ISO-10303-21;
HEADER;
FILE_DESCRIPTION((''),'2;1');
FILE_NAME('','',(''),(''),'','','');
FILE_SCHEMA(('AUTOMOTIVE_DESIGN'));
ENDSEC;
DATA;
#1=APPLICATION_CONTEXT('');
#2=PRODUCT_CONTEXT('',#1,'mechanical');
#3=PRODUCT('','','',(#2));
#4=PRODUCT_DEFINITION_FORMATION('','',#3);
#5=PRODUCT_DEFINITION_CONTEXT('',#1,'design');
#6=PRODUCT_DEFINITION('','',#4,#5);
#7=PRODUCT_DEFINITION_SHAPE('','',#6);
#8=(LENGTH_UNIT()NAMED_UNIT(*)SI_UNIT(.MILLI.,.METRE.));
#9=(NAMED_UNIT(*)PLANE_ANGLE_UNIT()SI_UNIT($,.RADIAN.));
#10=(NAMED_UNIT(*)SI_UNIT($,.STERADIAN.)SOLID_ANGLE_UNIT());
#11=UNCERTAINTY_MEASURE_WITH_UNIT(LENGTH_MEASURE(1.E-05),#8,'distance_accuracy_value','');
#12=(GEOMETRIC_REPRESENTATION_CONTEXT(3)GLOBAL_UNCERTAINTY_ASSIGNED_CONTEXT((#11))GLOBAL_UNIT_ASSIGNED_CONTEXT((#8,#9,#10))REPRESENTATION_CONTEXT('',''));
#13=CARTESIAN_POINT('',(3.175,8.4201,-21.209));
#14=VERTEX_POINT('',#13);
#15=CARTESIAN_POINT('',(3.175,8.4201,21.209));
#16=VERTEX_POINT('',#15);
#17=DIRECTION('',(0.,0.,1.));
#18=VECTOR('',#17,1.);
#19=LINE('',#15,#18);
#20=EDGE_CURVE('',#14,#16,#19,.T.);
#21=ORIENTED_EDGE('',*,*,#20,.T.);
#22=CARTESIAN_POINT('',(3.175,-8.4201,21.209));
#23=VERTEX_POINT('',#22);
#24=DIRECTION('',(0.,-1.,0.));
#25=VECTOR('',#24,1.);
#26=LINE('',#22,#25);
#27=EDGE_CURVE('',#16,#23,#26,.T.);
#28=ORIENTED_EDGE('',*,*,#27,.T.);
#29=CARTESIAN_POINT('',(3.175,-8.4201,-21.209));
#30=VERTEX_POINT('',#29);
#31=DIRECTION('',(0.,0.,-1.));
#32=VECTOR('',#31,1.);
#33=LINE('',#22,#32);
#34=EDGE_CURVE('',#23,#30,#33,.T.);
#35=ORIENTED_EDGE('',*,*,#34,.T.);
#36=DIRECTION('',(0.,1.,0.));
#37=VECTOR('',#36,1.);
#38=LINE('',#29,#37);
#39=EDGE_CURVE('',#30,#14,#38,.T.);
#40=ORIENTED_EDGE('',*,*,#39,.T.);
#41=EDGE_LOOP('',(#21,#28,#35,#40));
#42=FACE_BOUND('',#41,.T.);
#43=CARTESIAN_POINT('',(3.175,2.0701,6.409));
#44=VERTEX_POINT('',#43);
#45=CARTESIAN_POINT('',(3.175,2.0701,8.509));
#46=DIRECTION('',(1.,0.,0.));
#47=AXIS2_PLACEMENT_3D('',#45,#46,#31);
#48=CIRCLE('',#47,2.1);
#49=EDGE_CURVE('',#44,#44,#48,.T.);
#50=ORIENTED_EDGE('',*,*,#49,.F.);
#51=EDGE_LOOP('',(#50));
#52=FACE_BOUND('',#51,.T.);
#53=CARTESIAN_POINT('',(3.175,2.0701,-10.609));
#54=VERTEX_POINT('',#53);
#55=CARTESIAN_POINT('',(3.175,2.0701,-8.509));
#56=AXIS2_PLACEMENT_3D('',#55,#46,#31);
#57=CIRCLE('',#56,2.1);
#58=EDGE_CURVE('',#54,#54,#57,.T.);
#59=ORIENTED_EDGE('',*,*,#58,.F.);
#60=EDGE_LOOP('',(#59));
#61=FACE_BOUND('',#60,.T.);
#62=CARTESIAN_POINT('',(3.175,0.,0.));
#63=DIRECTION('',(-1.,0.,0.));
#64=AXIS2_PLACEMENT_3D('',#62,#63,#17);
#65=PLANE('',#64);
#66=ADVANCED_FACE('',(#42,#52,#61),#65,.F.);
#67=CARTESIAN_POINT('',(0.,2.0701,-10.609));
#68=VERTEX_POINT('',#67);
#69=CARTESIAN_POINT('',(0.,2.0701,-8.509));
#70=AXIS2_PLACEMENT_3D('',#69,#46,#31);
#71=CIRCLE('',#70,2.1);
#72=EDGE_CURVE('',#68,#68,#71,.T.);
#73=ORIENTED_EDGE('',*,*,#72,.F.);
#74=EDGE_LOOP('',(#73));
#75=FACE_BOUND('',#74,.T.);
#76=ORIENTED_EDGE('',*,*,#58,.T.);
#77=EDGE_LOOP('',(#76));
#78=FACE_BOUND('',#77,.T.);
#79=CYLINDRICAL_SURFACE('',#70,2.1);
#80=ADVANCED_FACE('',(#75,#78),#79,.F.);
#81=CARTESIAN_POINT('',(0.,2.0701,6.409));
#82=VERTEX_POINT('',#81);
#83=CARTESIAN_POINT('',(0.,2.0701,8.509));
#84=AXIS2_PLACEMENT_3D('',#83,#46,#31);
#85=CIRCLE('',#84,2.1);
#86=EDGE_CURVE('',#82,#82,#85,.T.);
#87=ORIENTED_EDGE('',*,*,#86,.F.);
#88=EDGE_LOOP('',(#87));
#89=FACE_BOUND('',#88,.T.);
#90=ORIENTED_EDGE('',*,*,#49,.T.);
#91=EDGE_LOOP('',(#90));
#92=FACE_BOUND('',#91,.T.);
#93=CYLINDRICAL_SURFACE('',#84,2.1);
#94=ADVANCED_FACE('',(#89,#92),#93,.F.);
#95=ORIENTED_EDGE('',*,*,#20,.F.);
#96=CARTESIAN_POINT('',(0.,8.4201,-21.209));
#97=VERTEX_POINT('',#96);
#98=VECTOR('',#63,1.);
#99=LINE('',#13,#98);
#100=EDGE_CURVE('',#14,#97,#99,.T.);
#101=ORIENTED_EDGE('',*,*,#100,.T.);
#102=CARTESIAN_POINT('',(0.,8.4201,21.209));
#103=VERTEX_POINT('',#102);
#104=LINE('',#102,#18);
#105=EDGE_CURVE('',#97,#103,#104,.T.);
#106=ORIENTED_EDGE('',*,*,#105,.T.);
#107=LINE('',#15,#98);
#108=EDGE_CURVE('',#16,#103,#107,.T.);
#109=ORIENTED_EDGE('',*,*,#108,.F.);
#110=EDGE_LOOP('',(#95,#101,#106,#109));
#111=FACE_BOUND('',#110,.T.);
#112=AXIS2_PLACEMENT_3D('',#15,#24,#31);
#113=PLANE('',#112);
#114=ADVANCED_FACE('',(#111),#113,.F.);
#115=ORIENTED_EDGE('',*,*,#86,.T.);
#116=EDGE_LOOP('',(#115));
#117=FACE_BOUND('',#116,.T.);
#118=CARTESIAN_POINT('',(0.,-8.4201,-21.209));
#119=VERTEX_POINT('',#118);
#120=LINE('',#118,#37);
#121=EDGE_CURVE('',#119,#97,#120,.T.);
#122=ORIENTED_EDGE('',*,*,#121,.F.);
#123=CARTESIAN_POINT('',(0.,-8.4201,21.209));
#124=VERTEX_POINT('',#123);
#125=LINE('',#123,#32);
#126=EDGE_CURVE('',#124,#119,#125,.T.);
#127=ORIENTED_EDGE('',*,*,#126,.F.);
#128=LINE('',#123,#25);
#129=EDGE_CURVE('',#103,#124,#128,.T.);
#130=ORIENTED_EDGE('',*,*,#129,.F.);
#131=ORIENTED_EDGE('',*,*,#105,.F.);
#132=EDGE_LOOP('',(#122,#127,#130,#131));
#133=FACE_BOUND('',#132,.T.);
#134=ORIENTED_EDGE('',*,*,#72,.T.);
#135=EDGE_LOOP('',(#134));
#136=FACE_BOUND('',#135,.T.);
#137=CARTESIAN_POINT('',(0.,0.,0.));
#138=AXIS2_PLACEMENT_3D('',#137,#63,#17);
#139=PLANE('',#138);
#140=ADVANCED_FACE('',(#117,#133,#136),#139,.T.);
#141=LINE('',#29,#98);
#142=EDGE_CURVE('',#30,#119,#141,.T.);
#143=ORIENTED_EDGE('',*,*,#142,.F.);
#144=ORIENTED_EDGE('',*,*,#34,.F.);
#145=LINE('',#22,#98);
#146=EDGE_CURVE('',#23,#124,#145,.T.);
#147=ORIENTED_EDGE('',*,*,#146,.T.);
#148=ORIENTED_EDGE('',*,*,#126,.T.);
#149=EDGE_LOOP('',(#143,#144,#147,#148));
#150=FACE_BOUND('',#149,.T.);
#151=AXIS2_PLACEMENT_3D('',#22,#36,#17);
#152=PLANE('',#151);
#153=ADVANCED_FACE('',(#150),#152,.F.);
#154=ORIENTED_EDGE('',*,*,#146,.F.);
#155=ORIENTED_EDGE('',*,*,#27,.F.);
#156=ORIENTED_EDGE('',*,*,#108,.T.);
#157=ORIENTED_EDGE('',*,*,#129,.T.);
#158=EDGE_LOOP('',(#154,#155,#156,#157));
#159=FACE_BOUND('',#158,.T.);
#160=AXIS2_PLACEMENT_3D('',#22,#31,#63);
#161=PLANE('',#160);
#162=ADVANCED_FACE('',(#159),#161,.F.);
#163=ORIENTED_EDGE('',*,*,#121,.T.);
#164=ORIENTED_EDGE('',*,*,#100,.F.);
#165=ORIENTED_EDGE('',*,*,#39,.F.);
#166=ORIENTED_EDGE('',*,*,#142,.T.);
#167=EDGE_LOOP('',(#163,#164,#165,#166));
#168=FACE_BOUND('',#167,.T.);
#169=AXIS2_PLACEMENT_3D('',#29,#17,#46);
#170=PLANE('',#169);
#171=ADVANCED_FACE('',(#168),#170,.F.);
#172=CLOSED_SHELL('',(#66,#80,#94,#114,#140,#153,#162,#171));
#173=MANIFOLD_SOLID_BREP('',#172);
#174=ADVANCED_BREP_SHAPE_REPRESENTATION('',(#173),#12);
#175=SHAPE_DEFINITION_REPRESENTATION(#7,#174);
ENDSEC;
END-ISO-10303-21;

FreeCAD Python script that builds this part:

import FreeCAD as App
import Part
import Sketcher

V = App.Vector
Q = App.Units.Quantity


def add_polygon(sketch, points):
    """Adds a closed chain of lines whose ends are joined by coincident constraints."""
    first, n = sketch.GeometryCount, len(points)
    for a, b in zip(points, points[1:] + points[:1]):
        sketch.addGeometry(Part.LineSegment(App.Vector(*a, 0), App.Vector(*b, 0)), False)
    for i in range(n):
        sketch.addConstraint(Sketcher.Constraint("Coincident", first + i, 2, first + (i + 1) % n, 1))

doc = App.newDocument("Part")
body = doc.addObject("PartDesign::Body", "Body")

# Sketch on YZ plane
sketch1 = body.newObject("Sketcher::SketchObject", "Sketch")
sketch1.AttachmentSupport = (doc.getObject("YZ_Plane"), [""])
sketch1.MapMode = "FlatFace"
add_polygon(sketch1, [(8, 21), (-8, 21), (-8, -21), (8, -21)])  # lines 0-3
sketch1.addConstraint([
    Sketcher.Constraint("Horizontal", 0),
    Sketcher.Constraint("Vertical", 1),
    Sketcher.Constraint("Horizontal", 2),
    Sketcher.Constraint("Vertical", 3),
    Sketcher.Constraint("Symmetric", 0, 2, 2, 2, -1, 1),
    Sketcher.Constraint("DistanceY", 1, 2, 1, 1, Q("1.67 in")),
    Sketcher.Constraint("DistanceX", 0, 2, 0, 1, Q("0.663 in")),
])
pad1 = body.newObject("PartDesign::Pad", "Pad")
pad1.Profile = sketch1
pad1.Length = Q("0.125 in")

# Sketch on YZ plane
sketch2 = body.newObject("Sketcher::SketchObject", "Sketch001")
sketch2.AttachmentSupport = (doc.getObject("YZ_Plane"), [""])
sketch2.MapMode = "FlatFace"
sketch2.AttachmentOffset = App.Placement(V(0, 0, 0.125 * 25.4), App.Rotation())
sketch2.addGeometry([
    Part.Circle(V(2.1, 8.5, 0), V(0, 0, 1), 2.1),
    Part.Circle(V(2.1, -8.5, 0), V(0, 0, 1), 2.1),
], False)
sketch2.addConstraint([
    Sketcher.Constraint("Equal", 0, 1),
    Sketcher.Constraint("Symmetric", 0, 3, 1, 3, -1),
    Sketcher.Constraint("Diameter", 0, 4.2),
    Sketcher.Constraint("DistanceY", 1, 3, 0, 3, Q("0.67 in")),
    Sketcher.Constraint("DistanceX", -1, 1, 0, 3, Q("0.0815 in")),
])
pocket1 = body.newObject("PartDesign::Pocket", "Pocket")
pocket1.Profile = sketch2
pocket1.Type = "ThroughAll"

doc.recompute()
